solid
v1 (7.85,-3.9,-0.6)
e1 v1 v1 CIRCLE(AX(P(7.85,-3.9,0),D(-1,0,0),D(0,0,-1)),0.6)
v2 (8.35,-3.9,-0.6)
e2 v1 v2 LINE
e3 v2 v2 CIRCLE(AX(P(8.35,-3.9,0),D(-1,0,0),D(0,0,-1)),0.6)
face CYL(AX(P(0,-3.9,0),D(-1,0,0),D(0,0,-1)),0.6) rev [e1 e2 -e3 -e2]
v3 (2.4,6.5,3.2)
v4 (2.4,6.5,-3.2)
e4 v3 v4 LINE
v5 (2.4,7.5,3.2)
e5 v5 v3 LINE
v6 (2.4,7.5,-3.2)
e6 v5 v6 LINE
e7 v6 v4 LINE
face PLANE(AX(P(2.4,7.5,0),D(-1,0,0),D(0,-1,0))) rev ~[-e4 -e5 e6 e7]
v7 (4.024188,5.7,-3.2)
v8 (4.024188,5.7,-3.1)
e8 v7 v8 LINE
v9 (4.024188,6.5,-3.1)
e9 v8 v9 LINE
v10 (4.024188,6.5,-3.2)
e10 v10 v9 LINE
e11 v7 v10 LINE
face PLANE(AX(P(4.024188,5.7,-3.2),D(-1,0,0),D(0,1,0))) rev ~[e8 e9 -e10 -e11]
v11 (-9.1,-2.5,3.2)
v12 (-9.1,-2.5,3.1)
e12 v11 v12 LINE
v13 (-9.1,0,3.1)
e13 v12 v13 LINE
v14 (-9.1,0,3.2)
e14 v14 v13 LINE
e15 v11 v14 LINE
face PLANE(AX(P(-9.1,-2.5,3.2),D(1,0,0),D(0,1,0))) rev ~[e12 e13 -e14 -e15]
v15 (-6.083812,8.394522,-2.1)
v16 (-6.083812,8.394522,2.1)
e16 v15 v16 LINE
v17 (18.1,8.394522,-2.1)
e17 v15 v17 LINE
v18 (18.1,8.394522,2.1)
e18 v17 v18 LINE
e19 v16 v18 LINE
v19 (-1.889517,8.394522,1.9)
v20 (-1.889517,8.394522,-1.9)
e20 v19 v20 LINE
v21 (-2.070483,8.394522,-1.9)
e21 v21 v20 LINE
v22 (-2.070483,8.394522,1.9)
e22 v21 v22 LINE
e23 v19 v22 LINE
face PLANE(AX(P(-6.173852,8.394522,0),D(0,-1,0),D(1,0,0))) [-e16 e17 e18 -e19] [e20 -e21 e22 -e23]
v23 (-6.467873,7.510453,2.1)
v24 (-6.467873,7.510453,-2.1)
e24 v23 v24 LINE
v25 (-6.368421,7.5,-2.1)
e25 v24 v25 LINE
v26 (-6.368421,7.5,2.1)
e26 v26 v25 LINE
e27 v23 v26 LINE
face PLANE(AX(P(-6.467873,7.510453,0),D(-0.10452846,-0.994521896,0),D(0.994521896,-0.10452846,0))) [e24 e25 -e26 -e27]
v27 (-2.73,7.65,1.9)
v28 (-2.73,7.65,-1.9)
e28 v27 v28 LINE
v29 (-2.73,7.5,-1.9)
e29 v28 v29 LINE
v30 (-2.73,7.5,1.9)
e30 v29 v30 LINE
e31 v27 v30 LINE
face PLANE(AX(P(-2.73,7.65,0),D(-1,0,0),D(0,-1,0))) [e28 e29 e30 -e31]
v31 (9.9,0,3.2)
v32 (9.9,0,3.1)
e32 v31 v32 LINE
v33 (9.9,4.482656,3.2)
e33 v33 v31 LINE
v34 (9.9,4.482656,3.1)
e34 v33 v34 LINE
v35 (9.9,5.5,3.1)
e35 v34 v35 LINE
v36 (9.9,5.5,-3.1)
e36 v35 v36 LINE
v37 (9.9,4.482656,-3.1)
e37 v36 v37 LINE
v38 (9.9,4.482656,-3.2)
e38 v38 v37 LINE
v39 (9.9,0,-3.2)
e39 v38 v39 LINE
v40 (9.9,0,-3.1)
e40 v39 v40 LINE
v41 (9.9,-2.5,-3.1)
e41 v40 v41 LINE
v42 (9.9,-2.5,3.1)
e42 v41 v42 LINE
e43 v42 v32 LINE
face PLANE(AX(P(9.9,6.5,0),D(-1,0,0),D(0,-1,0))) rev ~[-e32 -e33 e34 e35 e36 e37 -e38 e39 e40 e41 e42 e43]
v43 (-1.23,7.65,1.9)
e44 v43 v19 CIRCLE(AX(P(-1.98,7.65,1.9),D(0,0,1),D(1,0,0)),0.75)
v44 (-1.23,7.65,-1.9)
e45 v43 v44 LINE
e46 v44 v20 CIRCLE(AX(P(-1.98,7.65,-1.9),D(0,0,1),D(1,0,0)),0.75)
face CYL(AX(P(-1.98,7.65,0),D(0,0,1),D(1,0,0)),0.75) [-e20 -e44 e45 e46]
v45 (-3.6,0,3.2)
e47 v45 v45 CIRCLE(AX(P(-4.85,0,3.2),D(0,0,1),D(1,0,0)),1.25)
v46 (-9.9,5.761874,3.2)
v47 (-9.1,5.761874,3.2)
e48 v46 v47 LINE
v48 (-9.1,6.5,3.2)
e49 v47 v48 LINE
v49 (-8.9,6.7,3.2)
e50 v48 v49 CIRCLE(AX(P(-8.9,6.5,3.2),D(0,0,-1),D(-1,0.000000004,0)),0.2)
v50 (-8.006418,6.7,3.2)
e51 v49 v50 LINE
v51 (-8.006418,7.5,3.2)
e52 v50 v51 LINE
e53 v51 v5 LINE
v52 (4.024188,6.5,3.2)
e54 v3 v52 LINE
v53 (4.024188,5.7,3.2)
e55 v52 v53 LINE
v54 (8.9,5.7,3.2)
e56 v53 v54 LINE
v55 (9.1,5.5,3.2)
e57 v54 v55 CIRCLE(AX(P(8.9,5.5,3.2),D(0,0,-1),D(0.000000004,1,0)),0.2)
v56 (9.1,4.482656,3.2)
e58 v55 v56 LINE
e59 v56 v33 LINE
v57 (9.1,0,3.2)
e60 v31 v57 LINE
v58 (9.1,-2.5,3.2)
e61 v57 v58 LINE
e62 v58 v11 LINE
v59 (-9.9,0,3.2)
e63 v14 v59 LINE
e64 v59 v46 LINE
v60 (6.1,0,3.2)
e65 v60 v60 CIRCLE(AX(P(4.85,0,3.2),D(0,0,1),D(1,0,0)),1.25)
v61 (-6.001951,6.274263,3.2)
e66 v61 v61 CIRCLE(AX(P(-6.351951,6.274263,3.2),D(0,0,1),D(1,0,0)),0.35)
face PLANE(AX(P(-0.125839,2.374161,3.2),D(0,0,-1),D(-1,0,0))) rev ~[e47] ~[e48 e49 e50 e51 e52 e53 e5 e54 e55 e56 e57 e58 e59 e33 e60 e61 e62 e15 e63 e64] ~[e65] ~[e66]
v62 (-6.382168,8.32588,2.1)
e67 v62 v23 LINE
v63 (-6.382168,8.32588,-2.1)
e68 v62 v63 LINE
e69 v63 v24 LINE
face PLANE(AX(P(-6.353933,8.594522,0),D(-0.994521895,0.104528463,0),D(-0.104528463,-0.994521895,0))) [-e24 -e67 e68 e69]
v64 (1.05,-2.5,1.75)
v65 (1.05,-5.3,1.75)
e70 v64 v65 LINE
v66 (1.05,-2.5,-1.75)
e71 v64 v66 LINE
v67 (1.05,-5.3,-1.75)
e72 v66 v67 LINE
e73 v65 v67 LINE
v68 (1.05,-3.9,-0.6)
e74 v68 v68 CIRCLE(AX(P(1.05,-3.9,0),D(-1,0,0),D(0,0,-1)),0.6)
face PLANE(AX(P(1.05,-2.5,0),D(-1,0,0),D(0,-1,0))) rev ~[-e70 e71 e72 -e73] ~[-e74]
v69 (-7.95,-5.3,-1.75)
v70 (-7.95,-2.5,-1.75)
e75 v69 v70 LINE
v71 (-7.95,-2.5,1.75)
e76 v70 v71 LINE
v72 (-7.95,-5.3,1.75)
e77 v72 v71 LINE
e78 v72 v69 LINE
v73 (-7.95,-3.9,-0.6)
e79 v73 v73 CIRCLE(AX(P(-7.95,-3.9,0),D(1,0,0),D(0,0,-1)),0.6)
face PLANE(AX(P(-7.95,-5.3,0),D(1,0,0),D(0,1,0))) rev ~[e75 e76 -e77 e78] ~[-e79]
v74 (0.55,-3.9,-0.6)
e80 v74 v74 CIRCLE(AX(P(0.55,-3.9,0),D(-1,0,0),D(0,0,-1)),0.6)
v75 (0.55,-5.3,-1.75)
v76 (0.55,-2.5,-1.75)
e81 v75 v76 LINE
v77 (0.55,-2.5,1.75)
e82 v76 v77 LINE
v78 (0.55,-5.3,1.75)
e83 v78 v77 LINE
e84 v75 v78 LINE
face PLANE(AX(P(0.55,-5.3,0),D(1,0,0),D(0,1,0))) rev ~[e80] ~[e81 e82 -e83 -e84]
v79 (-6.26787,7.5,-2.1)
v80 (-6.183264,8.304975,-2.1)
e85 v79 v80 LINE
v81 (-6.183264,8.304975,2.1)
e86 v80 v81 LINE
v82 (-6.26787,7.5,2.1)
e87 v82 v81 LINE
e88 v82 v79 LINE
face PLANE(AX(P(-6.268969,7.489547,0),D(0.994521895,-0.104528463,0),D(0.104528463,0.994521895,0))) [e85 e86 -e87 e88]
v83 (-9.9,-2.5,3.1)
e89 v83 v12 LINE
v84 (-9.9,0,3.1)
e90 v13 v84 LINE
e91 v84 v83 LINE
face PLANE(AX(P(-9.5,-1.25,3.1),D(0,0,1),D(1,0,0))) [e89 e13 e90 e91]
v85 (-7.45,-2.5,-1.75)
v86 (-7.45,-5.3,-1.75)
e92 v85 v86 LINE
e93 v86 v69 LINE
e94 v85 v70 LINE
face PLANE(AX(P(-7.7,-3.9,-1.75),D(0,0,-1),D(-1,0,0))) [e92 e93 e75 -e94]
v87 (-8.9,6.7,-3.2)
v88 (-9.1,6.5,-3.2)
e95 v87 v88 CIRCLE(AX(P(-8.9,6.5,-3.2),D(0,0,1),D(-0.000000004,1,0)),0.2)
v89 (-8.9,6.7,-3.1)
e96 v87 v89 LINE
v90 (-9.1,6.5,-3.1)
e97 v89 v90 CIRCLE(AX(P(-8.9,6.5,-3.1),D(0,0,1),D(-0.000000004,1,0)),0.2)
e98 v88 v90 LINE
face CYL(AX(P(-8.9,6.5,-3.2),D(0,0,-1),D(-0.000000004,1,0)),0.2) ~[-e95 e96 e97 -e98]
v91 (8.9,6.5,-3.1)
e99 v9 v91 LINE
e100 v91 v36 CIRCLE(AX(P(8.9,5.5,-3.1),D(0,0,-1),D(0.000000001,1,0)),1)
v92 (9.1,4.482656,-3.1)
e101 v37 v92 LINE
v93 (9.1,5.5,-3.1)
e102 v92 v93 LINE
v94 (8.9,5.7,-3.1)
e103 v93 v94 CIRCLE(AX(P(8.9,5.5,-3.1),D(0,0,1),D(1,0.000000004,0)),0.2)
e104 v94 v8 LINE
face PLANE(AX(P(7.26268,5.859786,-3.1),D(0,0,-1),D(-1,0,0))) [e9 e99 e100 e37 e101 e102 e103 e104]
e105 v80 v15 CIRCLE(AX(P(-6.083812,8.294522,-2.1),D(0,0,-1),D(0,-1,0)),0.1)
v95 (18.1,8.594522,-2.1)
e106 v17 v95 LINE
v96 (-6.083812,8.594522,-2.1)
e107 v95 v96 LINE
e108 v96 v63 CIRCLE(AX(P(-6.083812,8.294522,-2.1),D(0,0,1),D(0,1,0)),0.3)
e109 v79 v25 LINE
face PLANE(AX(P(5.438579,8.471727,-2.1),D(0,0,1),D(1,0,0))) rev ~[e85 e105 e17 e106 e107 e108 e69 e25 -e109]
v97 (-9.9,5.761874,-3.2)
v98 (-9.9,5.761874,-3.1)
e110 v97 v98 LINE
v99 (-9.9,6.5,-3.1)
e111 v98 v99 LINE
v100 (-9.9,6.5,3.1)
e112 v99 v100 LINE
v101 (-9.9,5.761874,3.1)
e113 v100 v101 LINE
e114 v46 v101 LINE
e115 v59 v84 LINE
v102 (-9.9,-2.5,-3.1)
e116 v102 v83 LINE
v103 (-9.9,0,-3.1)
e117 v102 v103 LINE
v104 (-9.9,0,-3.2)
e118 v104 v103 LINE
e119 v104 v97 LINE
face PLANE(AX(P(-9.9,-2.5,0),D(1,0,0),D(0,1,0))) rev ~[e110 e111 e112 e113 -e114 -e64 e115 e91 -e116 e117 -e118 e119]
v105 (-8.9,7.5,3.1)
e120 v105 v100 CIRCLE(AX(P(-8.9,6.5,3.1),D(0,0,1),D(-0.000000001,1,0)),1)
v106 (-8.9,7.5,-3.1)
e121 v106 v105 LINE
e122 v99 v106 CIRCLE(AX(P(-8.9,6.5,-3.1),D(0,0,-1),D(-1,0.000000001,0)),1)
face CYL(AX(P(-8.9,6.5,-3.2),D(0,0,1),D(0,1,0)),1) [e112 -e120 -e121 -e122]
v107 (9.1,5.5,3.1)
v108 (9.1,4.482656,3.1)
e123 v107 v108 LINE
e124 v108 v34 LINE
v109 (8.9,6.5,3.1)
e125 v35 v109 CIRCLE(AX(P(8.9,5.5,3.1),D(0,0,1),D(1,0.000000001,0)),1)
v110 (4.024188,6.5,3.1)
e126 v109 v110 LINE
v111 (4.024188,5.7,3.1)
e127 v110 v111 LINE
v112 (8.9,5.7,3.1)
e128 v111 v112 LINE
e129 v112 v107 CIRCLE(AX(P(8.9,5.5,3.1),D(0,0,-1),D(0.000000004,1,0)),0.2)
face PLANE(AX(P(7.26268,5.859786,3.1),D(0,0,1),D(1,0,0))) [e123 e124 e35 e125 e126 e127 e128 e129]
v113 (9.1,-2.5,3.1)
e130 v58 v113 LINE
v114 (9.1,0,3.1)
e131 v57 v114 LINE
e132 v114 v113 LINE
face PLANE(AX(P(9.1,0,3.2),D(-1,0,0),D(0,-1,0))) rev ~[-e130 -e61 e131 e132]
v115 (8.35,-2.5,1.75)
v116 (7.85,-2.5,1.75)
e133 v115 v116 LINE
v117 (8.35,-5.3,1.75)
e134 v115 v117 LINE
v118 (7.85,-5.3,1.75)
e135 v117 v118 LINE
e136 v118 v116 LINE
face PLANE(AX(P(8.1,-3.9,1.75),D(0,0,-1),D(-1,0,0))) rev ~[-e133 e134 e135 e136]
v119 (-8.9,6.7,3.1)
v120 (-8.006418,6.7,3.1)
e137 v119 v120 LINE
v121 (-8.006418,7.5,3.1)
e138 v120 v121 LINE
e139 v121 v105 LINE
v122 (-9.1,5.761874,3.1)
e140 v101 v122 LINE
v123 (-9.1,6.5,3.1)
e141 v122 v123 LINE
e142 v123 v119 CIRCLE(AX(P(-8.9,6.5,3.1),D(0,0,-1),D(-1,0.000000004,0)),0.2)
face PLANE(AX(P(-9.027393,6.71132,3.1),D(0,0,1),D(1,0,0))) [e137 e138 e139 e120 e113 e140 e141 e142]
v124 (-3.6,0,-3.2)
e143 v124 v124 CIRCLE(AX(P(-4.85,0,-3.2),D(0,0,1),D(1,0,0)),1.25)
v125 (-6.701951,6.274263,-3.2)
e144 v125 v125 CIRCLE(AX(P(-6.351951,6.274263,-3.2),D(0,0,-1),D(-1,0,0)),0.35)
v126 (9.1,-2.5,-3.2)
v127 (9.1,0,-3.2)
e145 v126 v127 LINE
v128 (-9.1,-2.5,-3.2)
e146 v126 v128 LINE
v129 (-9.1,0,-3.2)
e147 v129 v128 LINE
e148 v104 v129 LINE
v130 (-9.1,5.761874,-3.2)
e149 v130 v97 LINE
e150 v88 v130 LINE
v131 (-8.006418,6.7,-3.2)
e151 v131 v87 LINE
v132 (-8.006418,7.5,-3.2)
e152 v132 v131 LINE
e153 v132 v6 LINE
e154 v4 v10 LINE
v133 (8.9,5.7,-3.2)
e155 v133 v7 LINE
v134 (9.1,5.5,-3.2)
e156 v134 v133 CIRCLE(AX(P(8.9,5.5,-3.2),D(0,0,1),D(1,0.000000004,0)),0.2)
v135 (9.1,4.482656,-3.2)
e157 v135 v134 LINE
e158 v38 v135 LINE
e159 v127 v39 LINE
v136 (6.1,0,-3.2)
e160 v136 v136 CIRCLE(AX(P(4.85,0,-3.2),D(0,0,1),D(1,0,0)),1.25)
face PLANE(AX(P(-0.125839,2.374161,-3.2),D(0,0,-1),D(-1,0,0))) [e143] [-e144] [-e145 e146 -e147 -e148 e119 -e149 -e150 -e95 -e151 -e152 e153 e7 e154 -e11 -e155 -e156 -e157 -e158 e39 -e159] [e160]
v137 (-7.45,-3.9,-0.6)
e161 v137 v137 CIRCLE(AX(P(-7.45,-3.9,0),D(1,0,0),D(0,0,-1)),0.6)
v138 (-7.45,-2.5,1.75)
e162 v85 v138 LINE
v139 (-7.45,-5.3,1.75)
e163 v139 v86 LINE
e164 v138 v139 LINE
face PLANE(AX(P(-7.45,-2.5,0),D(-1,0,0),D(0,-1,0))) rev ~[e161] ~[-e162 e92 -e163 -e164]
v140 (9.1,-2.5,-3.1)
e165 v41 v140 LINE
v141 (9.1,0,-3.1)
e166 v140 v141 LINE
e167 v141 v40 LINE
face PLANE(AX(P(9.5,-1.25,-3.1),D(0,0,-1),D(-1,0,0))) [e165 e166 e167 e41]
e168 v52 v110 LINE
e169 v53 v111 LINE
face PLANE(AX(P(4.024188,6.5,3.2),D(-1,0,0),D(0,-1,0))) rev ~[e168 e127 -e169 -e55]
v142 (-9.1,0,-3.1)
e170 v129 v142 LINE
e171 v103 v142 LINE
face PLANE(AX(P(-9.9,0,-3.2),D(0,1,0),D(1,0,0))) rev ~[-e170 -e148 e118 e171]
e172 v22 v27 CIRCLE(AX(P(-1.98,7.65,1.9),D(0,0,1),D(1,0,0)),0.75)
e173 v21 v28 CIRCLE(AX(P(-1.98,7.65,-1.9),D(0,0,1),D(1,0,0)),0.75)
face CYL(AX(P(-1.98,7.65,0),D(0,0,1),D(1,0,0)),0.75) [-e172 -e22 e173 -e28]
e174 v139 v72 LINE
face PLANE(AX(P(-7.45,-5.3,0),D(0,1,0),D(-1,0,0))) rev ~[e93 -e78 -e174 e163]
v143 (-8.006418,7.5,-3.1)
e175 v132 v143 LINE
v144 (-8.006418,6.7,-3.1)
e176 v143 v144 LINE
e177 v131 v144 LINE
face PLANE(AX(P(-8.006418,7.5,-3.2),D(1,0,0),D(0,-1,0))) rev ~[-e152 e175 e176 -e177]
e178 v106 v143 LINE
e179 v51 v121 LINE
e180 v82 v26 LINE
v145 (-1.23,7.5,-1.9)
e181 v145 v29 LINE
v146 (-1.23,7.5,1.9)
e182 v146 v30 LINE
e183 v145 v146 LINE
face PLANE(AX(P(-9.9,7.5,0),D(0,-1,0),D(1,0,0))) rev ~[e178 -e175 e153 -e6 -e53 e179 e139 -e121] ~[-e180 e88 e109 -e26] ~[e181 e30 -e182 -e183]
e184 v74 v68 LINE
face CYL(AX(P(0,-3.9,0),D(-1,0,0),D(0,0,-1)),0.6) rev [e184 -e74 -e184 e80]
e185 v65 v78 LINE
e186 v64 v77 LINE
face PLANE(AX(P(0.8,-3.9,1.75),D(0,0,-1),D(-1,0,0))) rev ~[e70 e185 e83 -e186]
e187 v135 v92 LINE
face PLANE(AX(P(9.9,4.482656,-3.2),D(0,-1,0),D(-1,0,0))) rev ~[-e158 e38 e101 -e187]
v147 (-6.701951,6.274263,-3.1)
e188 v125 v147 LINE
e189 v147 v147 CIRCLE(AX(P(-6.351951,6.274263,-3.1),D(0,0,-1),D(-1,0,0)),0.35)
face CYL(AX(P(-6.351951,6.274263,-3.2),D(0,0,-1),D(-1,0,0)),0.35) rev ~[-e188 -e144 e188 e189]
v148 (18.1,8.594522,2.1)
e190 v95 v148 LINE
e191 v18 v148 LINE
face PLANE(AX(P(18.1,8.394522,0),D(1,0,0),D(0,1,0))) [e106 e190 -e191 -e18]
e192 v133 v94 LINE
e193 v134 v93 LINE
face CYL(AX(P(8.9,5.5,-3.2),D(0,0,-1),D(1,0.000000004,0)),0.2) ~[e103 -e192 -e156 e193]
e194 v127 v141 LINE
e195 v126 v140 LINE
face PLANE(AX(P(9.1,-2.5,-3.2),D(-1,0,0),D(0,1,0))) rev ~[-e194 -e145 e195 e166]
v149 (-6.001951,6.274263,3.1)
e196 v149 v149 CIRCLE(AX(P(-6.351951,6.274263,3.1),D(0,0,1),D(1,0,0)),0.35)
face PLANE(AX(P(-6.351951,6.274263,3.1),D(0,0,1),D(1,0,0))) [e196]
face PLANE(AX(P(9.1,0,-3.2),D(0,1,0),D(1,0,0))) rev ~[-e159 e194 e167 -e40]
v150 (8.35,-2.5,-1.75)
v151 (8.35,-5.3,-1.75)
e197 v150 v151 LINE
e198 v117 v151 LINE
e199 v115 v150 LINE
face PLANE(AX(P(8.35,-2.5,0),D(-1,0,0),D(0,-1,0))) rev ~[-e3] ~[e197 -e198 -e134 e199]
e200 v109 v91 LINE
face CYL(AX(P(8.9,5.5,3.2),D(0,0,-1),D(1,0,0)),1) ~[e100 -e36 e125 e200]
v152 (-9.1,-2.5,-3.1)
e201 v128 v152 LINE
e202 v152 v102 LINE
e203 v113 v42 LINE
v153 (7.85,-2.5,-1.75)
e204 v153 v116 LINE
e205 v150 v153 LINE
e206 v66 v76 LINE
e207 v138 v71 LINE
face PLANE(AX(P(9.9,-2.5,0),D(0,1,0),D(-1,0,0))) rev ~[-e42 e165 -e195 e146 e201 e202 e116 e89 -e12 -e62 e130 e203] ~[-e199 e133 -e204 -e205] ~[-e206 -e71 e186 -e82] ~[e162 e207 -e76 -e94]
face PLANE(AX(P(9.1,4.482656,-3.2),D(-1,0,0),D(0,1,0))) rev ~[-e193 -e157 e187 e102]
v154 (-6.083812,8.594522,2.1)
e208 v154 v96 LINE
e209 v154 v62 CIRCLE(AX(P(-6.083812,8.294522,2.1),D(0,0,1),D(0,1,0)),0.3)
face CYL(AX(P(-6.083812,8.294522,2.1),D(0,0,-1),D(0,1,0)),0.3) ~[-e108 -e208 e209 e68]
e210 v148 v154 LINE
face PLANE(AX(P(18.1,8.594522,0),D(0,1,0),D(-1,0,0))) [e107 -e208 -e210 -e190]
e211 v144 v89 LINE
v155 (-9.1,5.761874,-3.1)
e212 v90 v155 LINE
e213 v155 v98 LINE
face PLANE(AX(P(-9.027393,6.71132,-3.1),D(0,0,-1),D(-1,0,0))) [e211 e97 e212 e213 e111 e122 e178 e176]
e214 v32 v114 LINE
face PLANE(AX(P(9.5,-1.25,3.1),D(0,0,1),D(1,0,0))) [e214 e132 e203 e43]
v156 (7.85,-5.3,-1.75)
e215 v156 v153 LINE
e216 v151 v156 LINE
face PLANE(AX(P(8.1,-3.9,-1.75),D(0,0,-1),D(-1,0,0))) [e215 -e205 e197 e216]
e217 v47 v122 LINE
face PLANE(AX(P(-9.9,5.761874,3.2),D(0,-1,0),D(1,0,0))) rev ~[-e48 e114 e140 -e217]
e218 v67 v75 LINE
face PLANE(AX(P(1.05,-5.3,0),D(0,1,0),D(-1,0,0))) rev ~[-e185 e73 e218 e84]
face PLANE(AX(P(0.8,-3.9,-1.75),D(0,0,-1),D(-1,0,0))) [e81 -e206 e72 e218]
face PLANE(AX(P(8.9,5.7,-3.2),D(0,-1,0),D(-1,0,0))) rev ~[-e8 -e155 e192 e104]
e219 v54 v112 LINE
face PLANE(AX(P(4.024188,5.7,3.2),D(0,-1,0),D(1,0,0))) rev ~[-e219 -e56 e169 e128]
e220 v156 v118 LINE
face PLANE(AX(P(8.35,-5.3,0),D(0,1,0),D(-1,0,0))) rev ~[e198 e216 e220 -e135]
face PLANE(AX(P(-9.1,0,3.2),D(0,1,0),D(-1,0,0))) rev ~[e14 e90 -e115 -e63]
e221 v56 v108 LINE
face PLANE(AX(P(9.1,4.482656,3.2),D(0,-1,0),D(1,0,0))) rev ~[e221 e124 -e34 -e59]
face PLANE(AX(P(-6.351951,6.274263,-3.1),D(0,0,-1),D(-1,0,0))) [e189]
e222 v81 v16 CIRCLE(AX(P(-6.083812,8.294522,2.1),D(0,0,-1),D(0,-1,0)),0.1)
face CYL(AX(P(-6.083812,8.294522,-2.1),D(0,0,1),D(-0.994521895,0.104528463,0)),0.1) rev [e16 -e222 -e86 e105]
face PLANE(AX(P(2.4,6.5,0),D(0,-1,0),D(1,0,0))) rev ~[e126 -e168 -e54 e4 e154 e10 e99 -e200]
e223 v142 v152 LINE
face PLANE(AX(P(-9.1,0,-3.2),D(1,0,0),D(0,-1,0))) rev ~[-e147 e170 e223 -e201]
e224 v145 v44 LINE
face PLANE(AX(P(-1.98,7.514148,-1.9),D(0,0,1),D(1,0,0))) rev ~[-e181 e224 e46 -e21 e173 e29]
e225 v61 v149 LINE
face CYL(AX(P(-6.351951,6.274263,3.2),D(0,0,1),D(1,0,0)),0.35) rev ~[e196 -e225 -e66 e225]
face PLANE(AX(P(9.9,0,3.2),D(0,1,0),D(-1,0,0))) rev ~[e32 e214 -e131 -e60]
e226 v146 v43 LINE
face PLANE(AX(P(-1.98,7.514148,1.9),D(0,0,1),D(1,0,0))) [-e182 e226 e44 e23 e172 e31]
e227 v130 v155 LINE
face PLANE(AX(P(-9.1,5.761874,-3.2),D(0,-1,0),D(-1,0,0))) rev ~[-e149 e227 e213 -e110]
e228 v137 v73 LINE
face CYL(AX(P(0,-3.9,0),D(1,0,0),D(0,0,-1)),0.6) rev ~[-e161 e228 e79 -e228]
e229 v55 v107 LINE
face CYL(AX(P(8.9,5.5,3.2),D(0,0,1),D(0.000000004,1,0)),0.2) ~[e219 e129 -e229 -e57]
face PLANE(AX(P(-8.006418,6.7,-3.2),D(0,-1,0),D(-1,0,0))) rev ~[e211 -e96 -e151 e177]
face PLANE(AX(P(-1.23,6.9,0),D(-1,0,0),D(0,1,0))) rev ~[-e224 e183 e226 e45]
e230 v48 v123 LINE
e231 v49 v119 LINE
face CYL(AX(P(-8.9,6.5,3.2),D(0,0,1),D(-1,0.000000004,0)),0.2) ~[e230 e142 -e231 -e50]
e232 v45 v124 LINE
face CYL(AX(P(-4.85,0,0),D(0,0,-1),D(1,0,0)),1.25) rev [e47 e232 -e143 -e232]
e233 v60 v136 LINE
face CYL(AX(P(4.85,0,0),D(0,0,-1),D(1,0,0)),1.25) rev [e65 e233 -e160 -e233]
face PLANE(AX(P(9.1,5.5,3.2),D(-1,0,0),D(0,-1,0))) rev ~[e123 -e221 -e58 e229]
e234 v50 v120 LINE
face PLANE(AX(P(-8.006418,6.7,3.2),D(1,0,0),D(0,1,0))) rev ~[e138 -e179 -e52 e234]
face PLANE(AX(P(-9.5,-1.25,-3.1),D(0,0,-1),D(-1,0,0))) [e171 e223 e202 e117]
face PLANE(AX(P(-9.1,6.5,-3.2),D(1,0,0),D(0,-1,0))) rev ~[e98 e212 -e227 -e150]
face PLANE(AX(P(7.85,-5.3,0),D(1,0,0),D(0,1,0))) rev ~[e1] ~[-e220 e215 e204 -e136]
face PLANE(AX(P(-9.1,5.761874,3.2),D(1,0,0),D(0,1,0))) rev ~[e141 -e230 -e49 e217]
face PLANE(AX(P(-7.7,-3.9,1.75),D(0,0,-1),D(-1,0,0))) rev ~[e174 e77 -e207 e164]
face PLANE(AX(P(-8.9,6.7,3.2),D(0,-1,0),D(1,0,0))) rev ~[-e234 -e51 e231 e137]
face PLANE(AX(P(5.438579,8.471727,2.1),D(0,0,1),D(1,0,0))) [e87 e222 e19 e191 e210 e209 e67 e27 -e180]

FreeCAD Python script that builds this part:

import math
import FreeCAD as App
import Part
import Sketcher
from FreeCAD import Vector
Q = App.Units.Quantity


def edges_at(feature, points):
    """Names of the edges that pass closest to the given points."""
    edges = feature.Shape.Edges
    near = lambda p: min(range(len(edges)), key=lambda i: edges[i].distToShape(Part.Vertex(*p))[0])
    return sorted({f"Edge{near(p) + 1}" for p in points})

doc = App.newDocument("Part")
body = doc.addObject("PartDesign::Body", "Body")

# Sketch on XY plane
sketch1 = doc.addObject("Sketcher::SketchObject", "Sketch")
body.addObject(sketch1)
sketch1.AttachmentSupport = (doc.XY_Plane, [""])
sketch1.MapMode = "FlatFace"
sketch1.addGeometry(Part.LineSegment(Vector(2.4, 7.5, 0), Vector(-9.9, 7.5, 0)), False)
sketch1.addGeometry(Part.LineSegment(Vector(-9.9, 7.5, 0), Vector(-9.9, -2.5, 0)), False)
sketch1.addGeometry(Part.LineSegment(Vector(-9.9, -2.5, 0), Vector(9.9, -2.5, 0)), False)
sketch1.addGeometry(Part.LineSegment(Vector(9.9, -2.5, 0), Vector(9.9, 6.5, 0)), False)
sketch1.addGeometry(Part.LineSegment(Vector(9.9, 6.5, 0), Vector(2.4, 6.5, 0)), False)
sketch1.addGeometry(Part.LineSegment(Vector(2.4, 6.5, 0), Vector(2.4, 7.5, 0)), False)
sketch1.addGeometry(Part.Circle(Vector(4.8, 0, 0), Vector(0, 0, 1), 1.2), False)
sketch1.addGeometry(Part.Circle(Vector(-4.8, 0, 0), Vector(0, 0, 1), 1.2), False)
sketch1.addConstraint(Sketcher.Constraint("Coincident", 0, 2, 1, 1))
sketch1.addConstraint(Sketcher.Constraint("Coincident", 1, 2, 2, 1))
sketch1.addConstraint(Sketcher.Constraint("Coincident", 2, 2, 3, 1))
sketch1.addConstraint(Sketcher.Constraint("Coincident", 3, 2, 4, 1))
sketch1.addConstraint(Sketcher.Constraint("Coincident", 4, 2, 5, 1))
sketch1.addConstraint(Sketcher.Constraint("Coincident", 5, 2, 0, 1))
sketch1.addConstraint(Sketcher.Constraint("Horizontal", 0))
sketch1.addConstraint(Sketcher.Constraint("Vertical", 1))
sketch1.addConstraint(Sketcher.Constraint("Horizontal", 2))
sketch1.addConstraint(Sketcher.Constraint("Vertical", 3))
sketch1.addConstraint(Sketcher.Constraint("Horizontal", 4))
sketch1.addConstraint(Sketcher.Constraint("Vertical", 5))
sketch1.addConstraint(Sketcher.Constraint("Equal", 6, 7))
sketch1.addConstraint(Sketcher.Constraint("Symmetric", 6, 3, 7, 3, -1, 1))
sketch1.addConstraint(Sketcher.Constraint("PointOnObject", 6, 3, -1))
sketch1.addConstraint(Sketcher.Constraint("Diameter", 6, Q("2.5 mm")))
sketch1.addConstraint(Sketcher.Constraint("DistanceY", 1, 2, 1, 1, Q("10 mm")))
sketch1.addConstraint(Sketcher.Constraint("DistanceY", 3, 1, 3, 2, Q("9 mm")))
sketch1.addConstraint(Sketcher.Constraint("DistanceX", 0, 2, 0, 1, Q("12.3 mm")))
sketch1.addConstraint(Sketcher.Constraint("DistanceX", 2, 1, 2, 2, Q("19.8 mm")))
sketch1.addConstraint(Sketcher.Constraint("DistanceX", 0, 2, -1, 1, Q("9.9 mm")))
sketch1.addConstraint(Sketcher.Constraint("DistanceY", -1, 1, 0, 2, Q("7.5 mm")))
sketch1.addConstraint(Sketcher.Constraint("DistanceX", 7, 3, 6, 3, Q("9.7 mm")))
pad1 = doc.addObject("PartDesign::Pad", "Pad")
body.addObject(pad1)
pad1.Profile = sketch1
pad1.Type = "TwoLengths"
pad1.Length = 3.2
pad1.Length2 = 3.2
doc.recompute()

fillet = doc.addObject("PartDesign::Fillet", "Fillet")
body.addObject(fillet)
fillet.Base = (pad1, edges_at(pad1, [(-9.9, 7.5, 0), (9.9, 6.5, 0)]))
fillet.Radius = 1

# Sketch on XY plane
sketch2 = doc.addObject("Sketcher::SketchObject", "Sketch001")
body.addObject(sketch2)
sketch2.AttachmentSupport = (doc.XY_Plane, [""])
sketch2.MapMode = "FlatFace"
sketch2.AttachmentOffset = App.Placement(Vector(0, 0, 3.2), App.Rotation())
sketch2.addGeometry(Part.LineSegment(Vector(8.9, 6.5, 0), Vector(4.02, 6.5, 0)), False)
sketch2.addGeometry(Part.LineSegment(Vector(4.02, 6.5, 0), Vector(4.02, 5.7, 0)), False)
sketch2.addGeometry(Part.LineSegment(Vector(4.02, 5.7, 0), Vector(8.9, 5.7, 0)), False)
sketch2.addGeometry(Part.ArcOfCircle(Part.Circle(Vector(8.9, 5.5, 0), Vector(0, 0, 1), 0.2), math.radians(0), math.radians(90)), False)
sketch2.addGeometry(Part.LineSegment(Vector(9.1, 5.5, 0), Vector(9.1, 4.48, 0)), False)
sketch2.addGeometry(Part.LineSegment(Vector(9.1, 4.48, 0), Vector(9.9, 4.48, 0)), False)
sketch2.addGeometry(Part.LineSegment(Vector(9.9, 4.48, 0), Vector(9.9, 5.5, 0)), False)
sketch2.addGeometry(Part.ArcOfCircle(Part.Circle(Vector(8.9, 5.5, 0), Vector(0, 0, 1), 1), math.radians(0), math.radians(90)), False)
sketch2.addGeometry(Part.LineSegment(Vector(9.9, -2.5, 0), Vector(9.9, 0, 0)), False)
sketch2.addGeometry(Part.LineSegment(Vector(9.9, 0, 0), Vector(9.1, 0, 0)), False)
sketch2.addGeometry(Part.LineSegment(Vector(9.1, 0, 0), Vector(9.1, -2.5, 0)), False)
sketch2.addGeometry(Part.LineSegment(Vector(9.1, -2.5, 0), Vector(9.9, -2.5, 0)), False)
sketch2.addGeometry(Part.LineSegment(Vector(-9.9, -2.5, 0), Vector(-9.1, -2.5, 0)), False)
sketch2.addGeometry(Part.LineSegment(Vector(-9.1, -2.5, 0), Vector(-9.1, 0, 0)), False)
sketch2.addGeometry(Part.LineSegment(Vector(-9.1, 0, 0), Vector(-9.9, 0, 0)), False)
sketch2.addGeometry(Part.LineSegment(Vector(-9.9, 0, 0), Vector(-9.9, -2.5, 0)), False)
sketch2.addGeometry(Part.LineSegment(Vector(-8.01, 7.5, 0), Vector(-8.9, 7.5, 0)), False)
sketch2.addGeometry(Part.ArcOfCircle(Part.Circle(Vector(-8.9, 6.5, 0), Vector(0, 0, 1), 1), math.radians(90), math.radians(180)), False)
sketch2.addGeometry(Part.LineSegment(Vector(-9.9, 6.5, 0), Vector(-9.9, 5.76, 0)), False)
sketch2.addGeometry(Part.LineSegment(Vector(-9.9, 5.76, 0), Vector(-9.1, 5.76, 0)), False)
sketch2.addGeometry(Part.LineSegment(Vector(-9.1, 5.76, 0), Vector(-9.1, 6.5, 0)), False)
sketch2.addGeometry(Part.ArcOfCircle(Part.Circle(Vector(-8.9, 6.5, 0), Vector(0, 0, 1), 0.2), math.radians(90), math.radians(180)), False)
sketch2.addGeometry(Part.LineSegment(Vector(-8.9, 6.7, 0), Vector(-8.01, 6.7, 0)), False)
sketch2.addGeometry(Part.LineSegment(Vector(-8.01, 6.7, 0), Vector(-8.01, 7.5, 0)), False)
sketch2.addConstraint(Sketcher.Constraint("Coincident", 0, 2, 1, 1))
sketch2.addConstraint(Sketcher.Constraint("Coincident", 1, 2, 2, 1))
sketch2.addConstraint(Sketcher.Constraint("Tangent", 2, 2, 3, 2))
sketch2.addConstraint(Sketcher.Constraint("Tangent", 3, 1, 4, 1))
sketch2.addConstraint(Sketcher.Constraint("Coincident", 4, 2, 5, 1))
sketch2.addConstraint(Sketcher.Constraint("Coincident", 5, 2, 6, 1))
sketch2.addConstraint(Sketcher.Constraint("Tangent", 6, 2, 7, 1))
sketch2.addConstraint(Sketcher.Constraint("Tangent", 7, 2, 0, 1))
sketch2.addConstraint(Sketcher.Constraint("Coincident", 8, 2, 9, 1))
sketch2.addConstraint(Sketcher.Constraint("Coincident", 9, 2, 10, 1))
sketch2.addConstraint(Sketcher.Constraint("Coincident", 10, 2, 11, 1))
sketch2.addConstraint(Sketcher.Constraint("Coincident", 11, 2, 8, 1))
sketch2.addConstraint(Sketcher.Constraint("Coincident", 12, 2, 13, 1))
sketch2.addConstraint(Sketcher.Constraint("Coincident", 13, 2, 14, 1))
sketch2.addConstraint(Sketcher.Constraint("Coincident", 14, 2, 15, 1))
sketch2.addConstraint(Sketcher.Constraint("Coincident", 15, 2, 12, 1))
sketch2.addConstraint(Sketcher.Constraint("Tangent", 16, 2, 17, 1))
sketch2.addConstraint(Sketcher.Constraint("Tangent", 17, 2, 18, 1))
sketch2.addConstraint(Sketcher.Constraint("Coincident", 18, 2, 19, 1))
sketch2.addConstraint(Sketcher.Constraint("Coincident", 19, 2, 20, 1))
sketch2.addConstraint(Sketcher.Constraint("Tangent", 20, 2, 21, 2))
sketch2.addConstraint(Sketcher.Constraint("Tangent", 21, 1, 22, 1))
sketch2.addConstraint(Sketcher.Constraint("Coincident", 22, 2, 23, 1))
sketch2.addConstraint(Sketcher.Constraint("Coincident", 23, 2, 16, 1))
sketch2.addConstraint(Sketcher.Constraint("Horizontal", 0))
sketch2.addConstraint(Sketcher.Constraint("Vertical", 1))
sketch2.addConstraint(Sketcher.Constraint("Horizontal", 2))
sketch2.addConstraint(Sketcher.Constraint("Vertical", 4))
sketch2.addConstraint(Sketcher.Constraint("Horizontal", 5))
sketch2.addConstraint(Sketcher.Constraint("Vertical", 6))
sketch2.addConstraint(Sketcher.Constraint("Vertical", 8))
sketch2.addConstraint(Sketcher.Constraint("Horizontal", 9))
sketch2.addConstraint(Sketcher.Constraint("Vertical", 10))
sketch2.addConstraint(Sketcher.Constraint("Horizontal", 11))
sketch2.addConstraint(Sketcher.Constraint("Horizontal", 12))
sketch2.addConstraint(Sketcher.Constraint("Vertical", 13))
sketch2.addConstraint(Sketcher.Constraint("Horizontal", 14))
sketch2.addConstraint(Sketcher.Constraint("Vertical", 15))
sketch2.addConstraint(Sketcher.Constraint("Horizontal", 16))
sketch2.addConstraint(Sketcher.Constraint("Vertical", 18))
sketch2.addConstraint(Sketcher.Constraint("Horizontal", 19))
sketch2.addConstraint(Sketcher.Constraint("Vertical", 20))
sketch2.addConstraint(Sketcher.Constraint("Horizontal", 22))
sketch2.addConstraint(Sketcher.Constraint("Vertical", 23))
sketch2.addConstraint(Sketcher.Constraint("Coincident", 7, 3, 3, 3))
sketch2.addConstraint(Sketcher.Constraint("Coincident", 21, 3, 17, 3))
sketch2.addConstraint(Sketcher.Constraint("Equal", 7, 17))
sketch2.addConstraint(Sketcher.Constraint("Equal", 3, 21))
sketch2.addConstraint(Sketcher.Constraint("Symmetric", 9, 2, 13, 2, -1, 1))
sketch2.addConstraint(Sketcher.Constraint("Symmetric", 8, 2, 14, 2, -2))
sketch2.addConstraint(Sketcher.Constraint("Horizontal", 21, 3, 0, 2))
sketch2.addConstraint(Sketcher.Constraint("Horizontal", 11, 2, 12, 2))
sketch2.addConstraint(Sketcher.Constraint("Vertical", 6, 2, 8, 2))
sketch2.addConstraint(Sketcher.Constraint("Vertical", 4, 2, 9, 2))
sketch2.addConstraint(Sketcher.Constraint("Vertical", 15, 2, 17, 2))
sketch2.addConstraint(Sketcher.Constraint("Radius", 7, Q("1 mm")))
sketch2.addConstraint(Sketcher.Constraint("Radius", 3, Q("0.2 mm")))
sketch2.addConstraint(Sketcher.Constraint("DistanceY", 8, 1, 8, 2, Q("2.5 mm")))
sketch2.addConstraint(Sketcher.Constraint("DistanceY", 10, 2, 3, 1, Q("8 mm")))
sketch2.addConstraint(Sketcher.Constraint("DistanceX", -1, 1, 3, 3, Q("8.9 mm")))
sketch2.addConstraint(Sketcher.Constraint("DistanceX", 16, 2, 16, 1, Q("0.893582 mm")))
sketch2.addConstraint(Sketcher.Constraint("DistanceX", 0, 2, 0, 1, Q("4.875812 mm")))
sketch2.addConstraint(Sketcher.Constraint("DistanceY", 4, 2, 4, 1, Q("1.017344 mm")))
sketch2.addConstraint(Sketcher.Constraint("DistanceY", 18, 2, 18, 1, Q("0.738126 mm")))
pocket1 = doc.addObject("PartDesign::Pocket", "Pocket")
body.addObject(pocket1)
pocket1.Profile = sketch2
pocket1.Length = 0.1

# Sketch on XY plane
sketch3 = doc.addObject("Sketcher::SketchObject", "Sketch002")
body.addObject(sketch3)
sketch3.AttachmentSupport = (doc.XY_Plane, [""])
sketch3.MapMode = "FlatFace"
sketch3.AttachmentOffset = App.Placement(Vector(0, 0, -3.2), App.Rotation())
sketch3.addGeometry(Part.LineSegment(Vector(-8.9, 7.5, 0), Vector(-8.01, 7.5, 0)), False)
sketch3.addGeometry(Part.LineSegment(Vector(-8.01, 7.5, 0), Vector(-8.01, 6.7, 0)), False)
sketch3.addGeometry(Part.LineSegment(Vector(-8.01, 6.7, 0), Vector(-8.9, 6.7, 0)), False)
sketch3.addGeometry(Part.ArcOfCircle(Part.Circle(Vector(-8.9, 6.5, 0), Vector(0, 0, 1), 0.2), math.radians(90), math.radians(180)), False)
sketch3.addGeometry(Part.LineSegment(Vector(-9.1, 6.5, 0), Vector(-9.1, 5.76, 0)), False)
sketch3.addGeometry(Part.LineSegment(Vector(-9.1, 5.76, 0), Vector(-9.9, 5.76, 0)), False)
sketch3.addGeometry(Part.LineSegment(Vector(-9.9, 5.76, 0), Vector(-9.9, 6.5, 0)), False)
sketch3.addGeometry(Part.ArcOfCircle(Part.Circle(Vector(-8.9, 6.5, 0), Vector(0, 0, 1), 1), math.radians(90), math.radians(180)), False)
sketch3.addGeometry(Part.LineSegment(Vector(-9.1, -2.5, 0), Vector(-9.9, -2.5, 0)), False)
sketch3.addGeometry(Part.LineSegment(Vector(-9.9, -2.5, 0), Vector(-9.9, 0, 0)), False)
sketch3.addGeometry(Part.LineSegment(Vector(-9.9, 0, 0), Vector(-9.1, 0, 0)), False)
sketch3.addGeometry(Part.LineSegment(Vector(-9.1, 0, 0), Vector(-9.1, -2.5, 0)), False)
sketch3.addGeometry(Part.LineSegment(Vector(9.9, 0, 0), Vector(9.9, -2.5, 0)), False)
sketch3.addGeometry(Part.LineSegment(Vector(9.9, -2.5, 0), Vector(9.1, -2.5, 0)), False)
sketch3.addGeometry(Part.LineSegment(Vector(9.1, -2.5, 0), Vector(9.1, 0, 0)), False)
sketch3.addGeometry(Part.LineSegment(Vector(9.1, 0, 0), Vector(9.9, 0, 0)), False)
sketch3.addGeometry(Part.LineSegment(Vector(4.02, 5.7, 0), Vector(4.02, 6.5, 0)), False)
sketch3.addGeometry(Part.LineSegment(Vector(4.02, 6.5, 0), Vector(8.9, 6.5, 0)), False)
sketch3.addGeometry(Part.ArcOfCircle(Part.Circle(Vector(8.9, 5.5, 0), Vector(0, 0, 1), 1), math.radians(0), math.radians(90)), False)
sketch3.addGeometry(Part.LineSegment(Vector(9.9, 5.5, 0), Vector(9.9, 4.48, 0)), False)
sketch3.addGeometry(Part.LineSegment(Vector(9.9, 4.48, 0), Vector(9.1, 4.48, 0)), False)
sketch3.addGeometry(Part.LineSegment(Vector(9.1, 4.48, 0), Vector(9.1, 5.5, 0)), False)
sketch3.addGeometry(Part.ArcOfCircle(Part.Circle(Vector(8.9, 5.5, 0), Vector(0, 0, 1), 0.2), math.radians(0), math.radians(90)), False)
sketch3.addGeometry(Part.LineSegment(Vector(8.9, 5.7, 0), Vector(4.02, 5.7, 0)), False)
sketch3.addConstraint(Sketcher.Constraint("Coincident", 0, 2, 1, 1))
sketch3.addConstraint(Sketcher.Constraint("Coincident", 1, 2, 2, 1))
sketch3.addConstraint(Sketcher.Constraint("Tangent", 2, 2, 3, 1))
sketch3.addConstraint(Sketcher.Constraint("Tangent", 3, 2, 4, 1))
sketch3.addConstraint(Sketcher.Constraint("Coincident", 4, 2, 5, 1))
sketch3.addConstraint(Sketcher.Constraint("Coincident", 5, 2, 6, 1))
sketch3.addConstraint(Sketcher.Constraint("Tangent", 6, 2, 7, 2))
sketch3.addConstraint(Sketcher.Constraint("Tangent", 7, 1, 0, 1))
sketch3.addConstraint(Sketcher.Constraint("Coincident", 8, 2, 9, 1))
sketch3.addConstraint(Sketcher.Constraint("Coincident", 9, 2, 10, 1))
sketch3.addConstraint(Sketcher.Constraint("Coincident", 10, 2, 11, 1))
sketch3.addConstraint(Sketcher.Constraint("Coincident", 11, 2, 8, 1))
sketch3.addConstraint(Sketcher.Constraint("Coincident", 12, 2, 13, 1))
sketch3.addConstraint(Sketcher.Constraint("Coincident", 13, 2, 14, 1))
sketch3.addConstraint(Sketcher.Constraint("Coincident", 14, 2, 15, 1))
sketch3.addConstraint(Sketcher.Constraint("Coincident", 15, 2, 12, 1))
sketch3.addConstraint(Sketcher.Constraint("Coincident", 16, 2, 17, 1))
sketch3.addConstraint(Sketcher.Constraint("Tangent", 17, 2, 18, 2))
sketch3.addConstraint(Sketcher.Constraint("Tangent", 18, 1, 19, 1))
sketch3.addConstraint(Sketcher.Constraint("Coincident", 19, 2, 20, 1))
sketch3.addConstraint(Sketcher.Constraint("Coincident", 20, 2, 21, 1))
sketch3.addConstraint(Sketcher.Constraint("Tangent", 21, 2, 22, 1))
sketch3.addConstraint(Sketcher.Constraint("Tangent", 22, 2, 23, 1))
sketch3.addConstraint(Sketcher.Constraint("Coincident", 23, 2, 16, 1))
sketch3.addConstraint(Sketcher.Constraint("Horizontal", 0))
sketch3.addConstraint(Sketcher.Constraint("Vertical", 1))
sketch3.addConstraint(Sketcher.Constraint("Horizontal", 2))
sketch3.addConstraint(Sketcher.Constraint("Vertical", 4))
sketch3.addConstraint(Sketcher.Constraint("Horizontal", 5))
sketch3.addConstraint(Sketcher.Constraint("Vertical", 6))
sketch3.addConstraint(Sketcher.Constraint("Horizontal", 8))
sketch3.addConstraint(Sketcher.Constraint("Vertical", 9))
sketch3.addConstraint(Sketcher.Constraint("Horizontal", 10))
sketch3.addConstraint(Sketcher.Constraint("Vertical", 11))
sketch3.addConstraint(Sketcher.Constraint("Vertical", 12))
sketch3.addConstraint(Sketcher.Constraint("Horizontal", 13))
sketch3.addConstraint(Sketcher.Constraint("Vertical", 14))
sketch3.addConstraint(Sketcher.Constraint("Horizontal", 15))
sketch3.addConstraint(Sketcher.Constraint("Vertical", 16))
sketch3.addConstraint(Sketcher.Constraint("Horizontal", 17))
sketch3.addConstraint(Sketcher.Constraint("Vertical", 19))
sketch3.addConstraint(Sketcher.Constraint("Horizontal", 20))
sketch3.addConstraint(Sketcher.Constraint("Vertical", 21))
sketch3.addConstraint(Sketcher.Constraint("Horizontal", 23))
sketch3.addConstraint(Sketcher.Constraint("Coincident", 7, 3, 3, 3))
sketch3.addConstraint(Sketcher.Constraint("Coincident", 22, 3, 18, 3))
sketch3.addConstraint(Sketcher.Constraint("Equal", 7, 18))
sketch3.addConstraint(Sketcher.Constraint("Equal", 3, 22))
sketch3.addConstraint(Sketcher.Constraint("Symmetric", 10, 2, 14, 2, -1, 1))
sketch3.addConstraint(Sketcher.Constraint("Symmetric", 8, 2, 12, 2, -2))
sketch3.addConstraint(Sketcher.Constraint("PointOnObject", 9, 2, -1))
sketch3.addConstraint(Sketcher.Constraint("Horizontal", 6, 2, 16, 2))
sketch3.addConstraint(Sketcher.Constraint("Vertical", 6, 2, 8, 2))
sketch3.addConstraint(Sketcher.Constraint("Vertical", 4, 2, 10, 2))
sketch3.addConstraint(Sketcher.Constraint("Vertical", 15, 2, 18, 1))
sketch3.addConstraint(Sketcher.Constraint("Radius", 7, Q("1 mm")))
sketch3.addConstraint(Sketcher.Constraint("Radius", 3, Q("0.2 mm")))
sketch3.addConstraint(Sketcher.Constraint("DistanceY", 9, 1, 9, 2, Q("2.5 mm")))
sketch3.addConstraint(Sketcher.Constraint("DistanceY", 8, 2, 6, 2, Q("9 mm")))
sketch3.addConstraint(Sketcher.Constraint("DistanceX", 11, 2, 12, 2, Q("19 mm")))
sketch3.addConstraint(Sketcher.Constraint("DistanceX", 0, 1, 0, 2, Q("0.893582 mm")))
sketch3.addConstraint(Sketcher.Constraint("DistanceX", 17, 1, 17, 2, Q("4.875812 mm")))
sketch3.addConstraint(Sketcher.Constraint("DistanceY", 4, 2, 4, 1, Q("0.738126 mm")))
sketch3.addConstraint(Sketcher.Constraint("DistanceY", 19, 2, 19, 1, Q("1.017344 mm")))
pocket2 = doc.addObject("PartDesign::Pocket", "Pocket001")
body.addObject(pocket2)
pocket2.Profile = sketch3
pocket2.Length = 0.1
pocket2.Reversed = True

# Sketch on XY plane
sketch4 = doc.addObject("Sketcher::SketchObject", "Sketch003")
body.addObject(sketch4)
sketch4.AttachmentSupport = (doc.XY_Plane, [""])
sketch4.MapMode = "FlatFace"
sketch4.addGeometry(Part.LineSegment(Vector(-7.5, -2.5, 0), Vector(-8, -2.5, 0)), False)
sketch4.addGeometry(Part.LineSegment(Vector(-8, -2.5, 0), Vector(-8, -5.3, 0)), False)
sketch4.addGeometry(Part.LineSegment(Vector(-8, -5.3, 0), Vector(-7.5, -5.3, 0)), False)
sketch4.addGeometry(Part.LineSegment(Vector(-7.5, -5.3, 0), Vector(-7.5, -2.5, 0)), False)
sketch4.addGeometry(Part.LineSegment(Vector(8.3, -2.5, 0), Vector(7.8, -2.5, 0)), False)
sketch4.addGeometry(Part.LineSegment(Vector(7.8, -2.5, 0), Vector(7.8, -5.3, 0)), False)
sketch4.addGeometry(Part.LineSegment(Vector(7.8, -5.3, 0), Vector(8.3, -5.3, 0)), False)
sketch4.addGeometry(Part.LineSegment(Vector(8.3, -5.3, 0), Vector(8.3, -2.5, 0)), False)
sketch4.addGeometry(Part.LineSegment(Vector(1.1, -2.5, 0), Vector(0.6, -2.5, 0)), False)
sketch4.addGeometry(Part.LineSegment(Vector(0.6, -2.5, 0), Vector(0.6, -5.3, 0)), False)
sketch4.addGeometry(Part.LineSegment(Vector(0.6, -5.3, 0), Vector(1.1, -5.3, 0)), False)
sketch4.addGeometry(Part.LineSegment(Vector(1.1, -5.3, 0), Vector(1.1, -2.5, 0)), False)
sketch4.addConstraint(Sketcher.Constraint("Coincident", 0, 2, 1, 1))
sketch4.addConstraint(Sketcher.Constraint("Coincident", 1, 2, 2, 1))
sketch4.addConstraint(Sketcher.Constraint("Coincident", 2, 2, 3, 1))
sketch4.addConstraint(Sketcher.Constraint("Coincident", 3, 2, 0, 1))
sketch4.addConstraint(Sketcher.Constraint("Coincident", 4, 2, 5, 1))
sketch4.addConstraint(Sketcher.Constraint("Coincident", 5, 2, 6, 1))
sketch4.addConstraint(Sketcher.Constraint("Coincident", 6, 2, 7, 1))
sketch4.addConstraint(Sketcher.Constraint("Coincident", 7, 2, 4, 1))
sketch4.addConstraint(Sketcher.Constraint("Coincident", 8, 2, 9, 1))
sketch4.addConstraint(Sketcher.Constraint("Coincident", 9, 2, 10, 1))
sketch4.addConstraint(Sketcher.Constraint("Coincident", 10, 2, 11, 1))
sketch4.addConstraint(Sketcher.Constraint("Coincident", 11, 2, 8, 1))
sketch4.addConstraint(Sketcher.Constraint("Horizontal", 0))
sketch4.addConstraint(Sketcher.Constraint("Vertical", 1))
sketch4.addConstraint(Sketcher.Constraint("Horizontal", 2))
sketch4.addConstraint(Sketcher.Constraint("Vertical", 3))
sketch4.addConstraint(Sketcher.Constraint("Horizontal", 4))
sketch4.addConstraint(Sketcher.Constraint("Vertical", 5))
sketch4.addConstraint(Sketcher.Constraint("Horizontal", 6))
sketch4.addConstraint(Sketcher.Constraint("Vertical", 7))
sketch4.addConstraint(Sketcher.Constraint("Horizontal", 8))
sketch4.addConstraint(Sketcher.Constraint("Vertical", 9))
sketch4.addConstraint(Sketcher.Constraint("Horizontal", 10))
sketch4.addConstraint(Sketcher.Constraint("Vertical", 11))
sketch4.addConstraint(Sketcher.Constraint("Horizontal", 3, 2, 4, 2))
sketch4.addConstraint(Sketcher.Constraint("Horizontal", 2, 2, 5, 2))
sketch4.addConstraint(Sketcher.Constraint("Horizontal", 7, 2, 8, 2))
sketch4.addConstraint(Sketcher.Constraint("Horizontal", 6, 2, 9, 2))
sketch4.addConstraint(Sketcher.Constraint("Equal", 2, 4))
sketch4.addConstraint(Sketcher.Constraint("Equal", 6, 8))
sketch4.addConstraint(Sketcher.Constraint("DistanceX", 0, 2, 0, 1, Q("0.5 mm")))
sketch4.addConstraint(Sketcher.Constraint("DistanceY", 1, 2, 1, 1, Q("2.8 mm")))
sketch4.addConstraint(Sketcher.Constraint("DistanceX", 3, 2, 8, 2, Q("8 mm")))
sketch4.addConstraint(Sketcher.Constraint("DistanceY", 0, 2, -1, 1, Q("2.5 mm")))
sketch4.addConstraint(Sketcher.Constraint("DistanceX", 3, 2, 4, 2, Q("15.3 mm")))
sketch4.addConstraint(Sketcher.Constraint("DistanceX", 0, 2, -1, 1, Q("7.95 mm")))
pad2 = doc.addObject("PartDesign::Pad", "Pad001")
body.addObject(pad2)
pad2.Profile = sketch4
pad2.Type = "TwoLengths"
pad2.Length = 1.75
pad2.Length2 = 1.75

# Sketch on YZ plane
sketch5 = doc.addObject("Sketcher::SketchObject", "Sketch004")
body.addObject(sketch5)
sketch5.AttachmentSupport = (doc.YZ_Plane, [""])
sketch5.MapMode = "FlatFace"
sketch5.addGeometry(Part.Circle(Vector(-3.9, 0, 0), Vector(0, 0, 1), 0.6), False)
sketch5.addConstraint(Sketcher.Constraint("PointOnObject", 0, 3, -1))
sketch5.addConstraint(Sketcher.Constraint("Diameter", 0, Q("1.2 mm")))
sketch5.addConstraint(Sketcher.Constraint("DistanceX", 0, 3, -1, 1, Q("3.9 mm")))
pocket3 = doc.addObject("PartDesign::Pocket", "Pocket002")
body.addObject(pocket3)
pocket3.Profile = sketch5
pocket3.Type = "ThroughAll"
pocket3.Midplane = True

# Sketch on XY plane
sketch6 = doc.addObject("Sketcher::SketchObject", "Sketch005")
body.addObject(sketch6)
sketch6.AttachmentSupport = (doc.XY_Plane, [""])
sketch6.MapMode = "FlatFace"
sketch6.AttachmentOffset = App.Placement(Vector(0, 0, 3.2), App.Rotation())
sketch6.addGeometry(Part.Circle(Vector(-6.35, 6.27, 0), Vector(0, 0, 1), 0.35), False)
sketch6.addConstraint(Sketcher.Constraint("Diameter", 0, Q("0.7 mm")))
sketch6.addConstraint(Sketcher.Constraint("DistanceX", 0, 3, -1, 1, Q("6.351951 mm")))
sketch6.addConstraint(Sketcher.Constraint("DistanceY", -1, 1, 0, 3, Q("6.274263 mm")))
pocket4 = doc.addObject("PartDesign::Pocket", "Pocket003")
body.addObject(pocket4)
pocket4.Profile = sketch6
pocket4.Length = 0.1

# Sketch on XY plane
sketch7 = doc.addObject("Sketcher::SketchObject", "Sketch006")
body.addObject(sketch7)
sketch7.AttachmentSupport = (doc.XY_Plane, [""])
sketch7.MapMode = "FlatFace"
sketch7.AttachmentOffset = App.Placement(Vector(0, 0, -3.2), App.Rotation())
sketch7.addGeometry(Part.Circle(Vector(-6.35, 6.27, 0), Vector(0, 0, 1), 0.35), False)
sketch7.addConstraint(Sketcher.Constraint("Diameter", 0, Q("0.7 mm")))
sketch7.addConstraint(Sketcher.Constraint("DistanceX", 0, 3, -1, 1, Q("6.351951 mm")))
sketch7.addConstraint(Sketcher.Constraint("DistanceY", -1, 1, 0, 3, Q("6.274263 mm")))
pocket5 = doc.addObject("PartDesign::Pocket", "Pocket004")
body.addObject(pocket5)
pocket5.Profile = sketch7
pocket5.Length = 0.1
pocket5.Reversed = True

# Sketch on XY plane
sketch8 = doc.addObject("Sketcher::SketchObject", "Sketch007")
body.addObject(sketch8)
sketch8.AttachmentSupport = (doc.XY_Plane, [""])
sketch8.MapMode = "FlatFace"
sketch8.addGeometry(Part.LineSegment(Vector(-2.7, 7.7, 0), Vector(-2.7, 6.9, 0)), False)
sketch8.addGeometry(Part.LineSegment(Vector(-2.7, 6.9, 0), Vector(-1.2, 6.9, 0)), False)
sketch8.addGeometry(Part.LineSegment(Vector(-1.2, 6.9, 0), Vector(-1.2, 7.7, 0)), False)
sketch8.addGeometry(Part.ArcOfCircle(Part.Circle(Vector(-2, 7.7, 0), Vector(0, 0, 1), 0.8), math.radians(0), math.radians(180)), False)
sketch8.addConstraint(Sketcher.Constraint("Coincident", 0, 2, 1, 1))
sketch8.addConstraint(Sketcher.Constraint("Coincident", 1, 2, 2, 1))
sketch8.addConstraint(Sketcher.Constraint("Tangent", 2, 2, 3, 1))
sketch8.addConstraint(Sketcher.Constraint("Tangent", 3, 2, 0, 1))
sketch8.addConstraint(Sketcher.Constraint("Vertical", 0))
sketch8.addConstraint(Sketcher.Constraint("Horizontal", 1))
sketch8.addConstraint(Sketcher.Constraint("Vertical", 2))
sketch8.addConstraint(Sketcher.Constraint("Radius", 3, Q("0.75 mm")))
sketch8.addConstraint(Sketcher.Constraint("DistanceY", 0, 2, 0, 1, Q("0.75 mm")))
sketch8.addConstraint(Sketcher.Constraint("DistanceY", -1, 1, 0, 2, Q("6.9 mm")))
sketch8.addConstraint(Sketcher.Constraint("DistanceX", 3, 3, -1, 1, Q("1.98 mm")))
pad3 = doc.addObject("PartDesign::Pad", "Pad002")
body.addObject(pad3)
pad3.Profile = sketch8
pad3.Type = "TwoLengths"
pad3.Length = 1.9
pad3.Length2 = 1.9

# Sketch on XY plane
sketch9 = doc.addObject("Sketcher::SketchObject", "Sketch008")
body.addObject(sketch9)
sketch9.AttachmentSupport = (doc.XY_Plane, [""])
sketch9.MapMode = "FlatFace"
sketch9.addGeometry(Part.LineSegment(Vector(-6.27, 7.49, 0), Vector(-6.17, 8.39, 0)), False)
sketch9.addGeometry(Part.LineSegment(Vector(-6.17, 8.39, 0), Vector(18.1, 8.39, 0)), False)
sketch9.addGeometry(Part.LineSegment(Vector(18.1, 8.39, 0), Vector(18.1, 8.59, 0)), False)
sketch9.addGeometry(Part.LineSegment(Vector(18.1, 8.59, 0), Vector(-6.35, 8.59, 0)), False)
sketch9.addGeometry(Part.LineSegment(Vector(-6.35, 8.59, 0), Vector(-6.47, 7.51, 0)), False)
sketch9.addGeometry(Part.LineSegment(Vector(-6.47, 7.51, 0), Vector(-6.27, 7.49, 0)), False)
sketch9.addConstraint(Sketcher.Constraint("Coincident", 0, 2, 1, 1))
sketch9.addConstraint(Sketcher.Constraint("Coincident", 1, 2, 2, 1))
sketch9.addConstraint(Sketcher.Constraint("Coincident", 2, 2, 3, 1))
sketch9.addConstraint(Sketcher.Constraint("Coincident", 3, 2, 4, 1))
sketch9.addConstraint(Sketcher.Constraint("Coincident", 4, 2, 5, 1))
sketch9.addConstraint(Sketcher.Constraint("Coincident", 5, 2, 0, 1))
sketch9.addConstraint(Sketcher.Constraint("Horizontal", 1))
sketch9.addConstraint(Sketcher.Constraint("Vertical", 2))
sketch9.addConstraint(Sketcher.Constraint("Horizontal", 3))
sketch9.addConstraint(Sketcher.Constraint("Parallel", 0, 4))
sketch9.addConstraint(Sketcher.Constraint("Perpendicular", 4, 5))
sketch9.addConstraint(Sketcher.Constraint("Angle", 0, Q("84 deg")))
sketch9.addConstraint(Sketcher.Constraint("DistanceY", 2, 1, 2, 2, Q("0.2 mm")))
sketch9.addConstraint(Sketcher.Constraint("Distance", 5, Q("0.2 mm")))
sketch9.addConstraint(Sketcher.Constraint("DistanceX", -1, 1, 1, 2, Q("18.1 mm")))
sketch9.addConstraint(Sketcher.Constraint("Distance", 0, Q("0.90996 mm")))
sketch9.addConstraint(Sketcher.Constraint("DistanceX", 1, 1, 1, 2, Q("24.273852 mm")))
sketch9.addConstraint(Sketcher.Constraint("DistanceY", -1, 1, 0, 2, Q("8.394522 mm")))
pad4 = doc.addObject("PartDesign::Pad", "Pad003")
body.addObject(pad4)
pad4.Profile = sketch9
pad4.Type = "TwoLengths"
pad4.Length = 2.1
pad4.Length2 = 2.1
doc.recompute()

fillet2 = doc.addObject("PartDesign::Fillet", "Fillet001")
body.addObject(fillet2)
fillet2.Base = (pad4, edges_at(pad4, [(-6.174, 8.395, 0)]))
fillet2.Radius = 0.1
doc.recompute()

fillet3 = doc.addObject("PartDesign::Fillet", "Fillet002")
body.addObject(fillet3)
fillet3.Base = (fillet2, edges_at(fillet2, [(-6.354, 8.595, 0)]))
fillet3.Radius = 0.3

doc.recompute()
